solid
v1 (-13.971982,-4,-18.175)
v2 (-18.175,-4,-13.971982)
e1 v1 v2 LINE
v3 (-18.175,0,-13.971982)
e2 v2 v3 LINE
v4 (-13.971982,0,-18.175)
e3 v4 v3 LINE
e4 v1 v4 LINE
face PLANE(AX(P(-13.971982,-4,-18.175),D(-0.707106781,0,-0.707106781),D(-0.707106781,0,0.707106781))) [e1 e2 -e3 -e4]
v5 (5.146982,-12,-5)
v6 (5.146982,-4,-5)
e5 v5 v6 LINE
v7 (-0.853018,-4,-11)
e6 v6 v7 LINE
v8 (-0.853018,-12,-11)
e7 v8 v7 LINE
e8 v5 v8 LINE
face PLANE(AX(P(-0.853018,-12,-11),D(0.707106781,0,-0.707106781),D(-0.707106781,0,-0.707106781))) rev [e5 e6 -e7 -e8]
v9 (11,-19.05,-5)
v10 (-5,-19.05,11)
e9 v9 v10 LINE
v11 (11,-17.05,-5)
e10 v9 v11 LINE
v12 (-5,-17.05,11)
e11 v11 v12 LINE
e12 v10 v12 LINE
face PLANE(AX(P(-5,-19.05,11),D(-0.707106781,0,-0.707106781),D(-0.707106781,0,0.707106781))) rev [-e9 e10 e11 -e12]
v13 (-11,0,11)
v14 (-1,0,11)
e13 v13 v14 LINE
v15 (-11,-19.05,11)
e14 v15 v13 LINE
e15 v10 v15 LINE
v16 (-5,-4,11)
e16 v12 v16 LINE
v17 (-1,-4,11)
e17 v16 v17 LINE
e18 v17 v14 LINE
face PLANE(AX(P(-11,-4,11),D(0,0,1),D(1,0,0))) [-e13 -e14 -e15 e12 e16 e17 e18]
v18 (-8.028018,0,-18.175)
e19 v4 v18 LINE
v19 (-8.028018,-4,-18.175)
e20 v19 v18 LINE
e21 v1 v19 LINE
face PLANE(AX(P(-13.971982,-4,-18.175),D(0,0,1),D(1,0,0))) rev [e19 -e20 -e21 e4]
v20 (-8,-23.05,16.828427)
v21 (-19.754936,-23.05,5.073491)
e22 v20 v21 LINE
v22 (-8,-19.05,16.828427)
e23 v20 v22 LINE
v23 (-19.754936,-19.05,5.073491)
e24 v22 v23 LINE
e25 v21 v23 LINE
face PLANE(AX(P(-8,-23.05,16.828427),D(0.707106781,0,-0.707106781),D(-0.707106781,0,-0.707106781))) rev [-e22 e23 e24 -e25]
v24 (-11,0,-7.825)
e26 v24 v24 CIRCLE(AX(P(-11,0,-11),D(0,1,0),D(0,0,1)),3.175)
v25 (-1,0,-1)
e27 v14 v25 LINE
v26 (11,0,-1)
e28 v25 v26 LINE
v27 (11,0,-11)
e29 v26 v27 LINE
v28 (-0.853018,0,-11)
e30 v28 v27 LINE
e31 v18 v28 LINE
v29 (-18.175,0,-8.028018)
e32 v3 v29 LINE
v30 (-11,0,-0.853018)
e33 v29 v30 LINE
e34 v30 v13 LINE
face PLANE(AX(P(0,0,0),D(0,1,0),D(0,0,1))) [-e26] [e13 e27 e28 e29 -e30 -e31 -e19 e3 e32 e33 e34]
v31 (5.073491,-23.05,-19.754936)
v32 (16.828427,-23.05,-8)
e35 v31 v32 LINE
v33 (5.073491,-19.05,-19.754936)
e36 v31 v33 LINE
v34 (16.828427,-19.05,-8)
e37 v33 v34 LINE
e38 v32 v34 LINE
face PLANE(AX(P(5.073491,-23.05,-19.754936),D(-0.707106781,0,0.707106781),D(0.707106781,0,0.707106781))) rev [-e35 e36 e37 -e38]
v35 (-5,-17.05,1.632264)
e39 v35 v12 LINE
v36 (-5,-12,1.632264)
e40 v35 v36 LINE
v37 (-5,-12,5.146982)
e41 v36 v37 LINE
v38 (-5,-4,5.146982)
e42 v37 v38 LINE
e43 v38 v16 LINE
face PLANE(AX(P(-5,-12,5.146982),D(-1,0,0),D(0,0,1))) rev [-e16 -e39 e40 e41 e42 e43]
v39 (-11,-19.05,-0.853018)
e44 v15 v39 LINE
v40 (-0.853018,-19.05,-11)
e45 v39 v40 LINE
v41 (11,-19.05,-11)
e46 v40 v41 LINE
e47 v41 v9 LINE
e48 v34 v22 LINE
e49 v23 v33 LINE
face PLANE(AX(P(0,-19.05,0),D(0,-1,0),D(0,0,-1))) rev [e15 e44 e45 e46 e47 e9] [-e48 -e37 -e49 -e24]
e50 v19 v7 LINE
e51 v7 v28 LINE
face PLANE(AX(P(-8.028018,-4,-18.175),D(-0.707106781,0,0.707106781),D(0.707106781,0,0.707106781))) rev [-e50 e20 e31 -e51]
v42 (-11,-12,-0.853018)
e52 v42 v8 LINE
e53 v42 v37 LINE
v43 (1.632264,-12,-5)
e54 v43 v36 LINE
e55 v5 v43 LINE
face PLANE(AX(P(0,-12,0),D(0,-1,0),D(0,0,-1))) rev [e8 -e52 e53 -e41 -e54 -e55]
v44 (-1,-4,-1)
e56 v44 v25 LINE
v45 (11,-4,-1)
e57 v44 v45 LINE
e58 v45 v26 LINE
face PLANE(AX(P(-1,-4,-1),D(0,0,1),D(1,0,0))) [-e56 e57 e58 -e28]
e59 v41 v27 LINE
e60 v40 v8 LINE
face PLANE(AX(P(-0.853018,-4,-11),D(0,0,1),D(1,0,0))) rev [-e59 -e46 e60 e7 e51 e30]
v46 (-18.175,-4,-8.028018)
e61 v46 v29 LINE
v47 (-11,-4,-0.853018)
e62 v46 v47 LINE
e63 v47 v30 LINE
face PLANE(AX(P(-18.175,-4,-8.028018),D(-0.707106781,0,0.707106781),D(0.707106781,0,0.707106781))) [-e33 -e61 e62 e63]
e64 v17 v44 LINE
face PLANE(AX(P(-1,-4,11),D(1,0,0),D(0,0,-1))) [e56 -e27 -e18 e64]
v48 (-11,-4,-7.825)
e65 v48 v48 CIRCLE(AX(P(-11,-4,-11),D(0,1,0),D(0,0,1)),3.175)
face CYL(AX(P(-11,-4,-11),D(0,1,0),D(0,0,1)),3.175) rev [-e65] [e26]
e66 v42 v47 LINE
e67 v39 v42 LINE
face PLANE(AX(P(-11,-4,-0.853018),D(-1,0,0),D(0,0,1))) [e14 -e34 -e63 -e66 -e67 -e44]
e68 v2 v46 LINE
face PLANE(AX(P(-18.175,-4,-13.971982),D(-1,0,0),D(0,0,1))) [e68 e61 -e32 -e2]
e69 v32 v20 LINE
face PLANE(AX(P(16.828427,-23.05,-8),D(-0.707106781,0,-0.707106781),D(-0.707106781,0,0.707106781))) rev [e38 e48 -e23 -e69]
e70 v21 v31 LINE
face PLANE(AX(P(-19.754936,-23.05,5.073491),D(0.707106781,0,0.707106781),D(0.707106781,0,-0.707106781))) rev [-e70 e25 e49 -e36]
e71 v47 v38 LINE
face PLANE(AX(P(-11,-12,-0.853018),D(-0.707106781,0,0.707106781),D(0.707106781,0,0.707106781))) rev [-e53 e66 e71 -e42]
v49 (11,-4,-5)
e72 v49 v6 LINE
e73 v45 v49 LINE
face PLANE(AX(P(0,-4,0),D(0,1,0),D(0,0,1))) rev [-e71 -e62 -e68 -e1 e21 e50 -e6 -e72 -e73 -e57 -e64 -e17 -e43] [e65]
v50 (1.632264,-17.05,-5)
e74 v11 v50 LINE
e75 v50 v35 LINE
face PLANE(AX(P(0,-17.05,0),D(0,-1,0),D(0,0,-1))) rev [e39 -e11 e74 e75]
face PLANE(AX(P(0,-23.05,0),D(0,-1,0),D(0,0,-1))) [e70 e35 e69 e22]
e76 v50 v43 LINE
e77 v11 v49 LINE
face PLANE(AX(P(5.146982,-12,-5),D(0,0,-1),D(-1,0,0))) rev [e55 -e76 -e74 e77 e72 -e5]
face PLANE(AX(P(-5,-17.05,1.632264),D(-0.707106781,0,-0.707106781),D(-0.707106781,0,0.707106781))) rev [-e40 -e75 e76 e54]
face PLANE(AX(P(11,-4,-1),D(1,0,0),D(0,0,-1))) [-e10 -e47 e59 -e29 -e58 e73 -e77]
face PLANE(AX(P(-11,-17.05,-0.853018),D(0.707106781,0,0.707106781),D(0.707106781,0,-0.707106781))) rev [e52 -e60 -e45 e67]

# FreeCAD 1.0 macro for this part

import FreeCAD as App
import Part
import Sketcher
from FreeCAD import Vector
Q = App.Units.Quantity

doc = App.newDocument("Part")
body = doc.addObject("PartDesign::Body", "Body")

# Sketch on XZ plane
sketch1 = body.newObject("Sketcher::SketchObject", "Sketch")
sketch1.AttachmentSupport = (doc.getObject("XZ_Plane"), [""])
sketch1.MapMode = "FlatFace"
sketch1.addGeometry([
    Part.LineSegment(Vector(-11, 11, 0), Vector(-1, 11, 0)),  # 0
    Part.LineSegment(Vector(-1, 11, 0), Vector(-1, -1, 0)),  # 1
    Part.LineSegment(Vector(-1, -1, 0), Vector(11, -1, 0)),  # 2
    Part.LineSegment(Vector(11, -1, 0), Vector(11, -11, 0)),  # 3
    Part.LineSegment(Vector(11, -11, 0), Vector(-0.853018, -11, 0)),  # 4
    Part.LineSegment(Vector(-0.853018, -11, 0), Vector(-8.028018, -18.175, 0)),  # 5
    Part.LineSegment(Vector(-8.028018, -18.175, 0), Vector(-13.971982, -18.175, 0)),  # 6
    Part.LineSegment(Vector(-13.971982, -18.175, 0), Vector(-18.175, -13.971982, 0)),  # 7
    Part.LineSegment(Vector(-18.175, -13.971982, 0), Vector(-18.175, -8.028018, 0)),  # 8
    Part.LineSegment(Vector(-18.175, -8.028018, 0), Vector(-11, -0.853018, 0)),  # 9
    Part.LineSegment(Vector(-11, -0.853018, 0), Vector(-11, 11, 0)),  # 10
    Part.Circle(Vector(-11, -11, 0), Vector(0, 0, 1), 3.175),  # 11
], False)
sketch1.addConstraint([
    Sketcher.Constraint("Coincident", 0, 2, 1, 1),
    Sketcher.Constraint("Coincident", 1, 2, 2, 1),
    Sketcher.Constraint("Coincident", 2, 2, 3, 1),
    Sketcher.Constraint("Coincident", 3, 2, 4, 1),
    Sketcher.Constraint("Coincident", 4, 2, 5, 1),
    Sketcher.Constraint("Coincident", 5, 2, 6, 1),
    Sketcher.Constraint("Coincident", 6, 2, 7, 1),
    Sketcher.Constraint("Coincident", 7, 2, 8, 1),
    Sketcher.Constraint("Coincident", 8, 2, 9, 1),
    Sketcher.Constraint("Coincident", 9, 2, 10, 1),
    Sketcher.Constraint("Coincident", 10, 2, 0, 1),
    Sketcher.Constraint("Horizontal", 0),
    Sketcher.Constraint("Vertical", 1),
    Sketcher.Constraint("Horizontal", 2),
    Sketcher.Constraint("Vertical", 3),
    Sketcher.Constraint("Horizontal", 4),
    Sketcher.Constraint("Horizontal", 6),
    Sketcher.Constraint("Vertical", 8),
    Sketcher.Constraint("Vertical", 10),
    Sketcher.Constraint("Symmetric", 3, 2, 10, 2, -1, 1),
    Sketcher.Constraint("Perpendicular", 5, 7),
    Sketcher.Constraint("Perpendicular", 7, 9),
    Sketcher.Constraint("Horizontal", 11, 3, 3, 2),
    Sketcher.Constraint("Vertical", 11, 3, 9, 2),
    Sketcher.Constraint("Equal", 2, 1),
    Sketcher.Constraint("Equal", 0, 3),
    Sketcher.Constraint("Equal", 6, 8),
    Sketcher.Constraint("Equal", 4, 10),
    Sketcher.Constraint("Equal", 5, 9),
    Sketcher.Constraint("Diameter", 11, 6.35),
    Sketcher.Constraint("DistanceX", 0, 1, 0, 2, 10.0),
    Sketcher.Constraint("DistanceX", 2, 1, 2, 2, 12.0),
    Sketcher.Constraint("DistanceY", 5, 2, -1, 1, 18.175),
    Sketcher.Constraint("DistanceX", 4, 2, 4, 1, 11.853018),
    Sketcher.Constraint("DistanceX", 6, 2, 6, 1, 5.943965),
])
pad1 = body.newObject("PartDesign::Pad", "Pad")
pad1.Profile = sketch1
pad1.Length = 4

# Sketch on XZ plane
sketch2 = body.newObject("Sketcher::SketchObject", "Sketch001")
sketch2.AttachmentSupport = (doc.getObject("XZ_Plane"), [""])
sketch2.MapMode = "FlatFace"
sketch2.AttachmentOffset = App.Placement(Vector(0, 0, 4), App.Rotation())
sketch2.addGeometry([
    Part.LineSegment(Vector(-0.853018, -11, 0), Vector(11, -11, 0)),  # 0
    Part.LineSegment(Vector(11, -11, 0), Vector(11, -5, 0)),  # 1
    Part.LineSegment(Vector(11, -5, 0), Vector(5.146982, -5, 0)),  # 2
    Part.LineSegment(Vector(5.146982, -5, 0), Vector(-0.853018, -11, 0)),  # 3
    Part.LineSegment(Vector(-11, 11, 0), Vector(-11, -0.853018, 0)),  # 4
    Part.LineSegment(Vector(-11, -0.853018, 0), Vector(-5, 5.146982, 0)),  # 5
    Part.LineSegment(Vector(-5, 5.146982, 0), Vector(-5, 11, 0)),  # 6
    Part.LineSegment(Vector(-5, 11, 0), Vector(-11, 11, 0)),  # 7
], False)
sketch2.addConstraint([
    Sketcher.Constraint("Coincident", 0, 2, 1, 1),
    Sketcher.Constraint("Coincident", 1, 2, 2, 1),
    Sketcher.Constraint("Coincident", 2, 2, 3, 1),
    Sketcher.Constraint("Coincident", 3, 2, 0, 1),
    Sketcher.Constraint("Coincident", 4, 2, 5, 1),
    Sketcher.Constraint("Coincident", 5, 2, 6, 1),
    Sketcher.Constraint("Coincident", 6, 2, 7, 1),
    Sketcher.Constraint("Coincident", 7, 2, 4, 1),
    Sketcher.Constraint("Horizontal", 0),
    Sketcher.Constraint("Vertical", 1),
    Sketcher.Constraint("Horizontal", 2),
    Sketcher.Constraint("Vertical", 4),
    Sketcher.Constraint("Vertical", 6),
    Sketcher.Constraint("Horizontal", 7),
    Sketcher.Constraint("Symmetric", 0, 2, 7, 2, -1, 1),
    Sketcher.Constraint("Parallel", 3, 5),
    Sketcher.Constraint("Equal", 7, 1),
    Sketcher.Constraint("Equal", 0, 4),
    Sketcher.Constraint("Equal", 2, 6),
    Sketcher.Constraint("DistanceX", 7, 2, 7, 1, 6.0),
    Sketcher.Constraint("DistanceX", -1, 1, 0, 2, 11.0),
    Sketcher.Constraint("DistanceY", 0, 2, -1, 1, 11.0),
    Sketcher.Constraint("DistanceX", 0, 1, 0, 2, 11.853018),
])
pad2 = body.newObject("PartDesign::Pad", "Pad001")
pad2.Profile = sketch2
pad2.Length = 8

# Sketch on XZ plane
sketch3 = body.newObject("Sketcher::SketchObject", "Sketch002")
sketch3.AttachmentSupport = (doc.getObject("XZ_Plane"), [""])
sketch3.MapMode = "FlatFace"
sketch3.AttachmentOffset = App.Placement(Vector(0, 0, 12), App.Rotation())
sketch3.addGeometry([
    Part.LineSegment(Vector(-0.853018, -11, 0), Vector(11, -11, 0)),  # 0
    Part.LineSegment(Vector(11, -11, 0), Vector(11, -5, 0)),  # 1
    Part.LineSegment(Vector(11, -5, 0), Vector(1.632264, -5, 0)),  # 2
    Part.LineSegment(Vector(1.632264, -5, 0), Vector(-5, 1.632264, 0)),  # 3
    Part.LineSegment(Vector(-5, 1.632264, 0), Vector(-5, 11, 0)),  # 4
    Part.LineSegment(Vector(-5, 11, 0), Vector(-11, 11, 0)),  # 5
    Part.LineSegment(Vector(-11, 11, 0), Vector(-11, -0.853018, 0)),  # 6
    Part.LineSegment(Vector(-11, -0.853018, 0), Vector(-0.853018, -11, 0)),  # 7
], False)
sketch3.addConstraint([
    Sketcher.Constraint("Coincident", 0, 2, 1, 1),
    Sketcher.Constraint("Coincident", 1, 2, 2, 1),
    Sketcher.Constraint("Coincident", 2, 2, 3, 1),
    Sketcher.Constraint("Coincident", 3, 2, 4, 1),
    Sketcher.Constraint("Coincident", 4, 2, 5, 1),
    Sketcher.Constraint("Coincident", 5, 2, 6, 1),
    Sketcher.Constraint("Coincident", 6, 2, 7, 1),
    Sketcher.Constraint("Coincident", 7, 2, 0, 1),
    Sketcher.Constraint("Horizontal", 0),
    Sketcher.Constraint("Vertical", 1),
    Sketcher.Constraint("Horizontal", 2),
    Sketcher.Constraint("Vertical", 4),
    Sketcher.Constraint("Horizontal", 5),
    Sketcher.Constraint("Vertical", 6),
    Sketcher.Constraint("Symmetric", 0, 2, 5, 2, -1, 1),
    Sketcher.Constraint("Parallel", 3, 7),
    Sketcher.Constraint("Equal", 5, 1),
    Sketcher.Constraint("Equal", 2, 4),
    Sketcher.Constraint("Equal", 0, 6),
    Sketcher.Constraint("DistanceX", 5, 2, 5, 1, 6.0),
    Sketcher.Constraint("DistanceX", -1, 1, 0, 2, 11.0),
    Sketcher.Constraint("Distance", 7, 14.35),
    Sketcher.Constraint("DistanceX", 2, 2, 2, 1, 9.367736),
])
pad3 = body.newObject("PartDesign::Pad", "Pad002")
pad3.Profile = sketch3
pad3.Length = 5.05

# Sketch on XZ plane
sketch4 = body.newObject("Sketcher::SketchObject", "Sketch003")
sketch4.AttachmentSupport = (doc.getObject("XZ_Plane"), [""])
sketch4.MapMode = "FlatFace"
sketch4.AttachmentOffset = App.Placement(Vector(0, 0, 17.05), App.Rotation())
sketch4.addGeometry([
    Part.LineSegment(Vector(-5, 11, 0), Vector(-11, 11, 0)),  # 0
    Part.LineSegment(Vector(-11, 11, 0), Vector(-11, -0.853018, 0)),  # 1
    Part.LineSegment(Vector(-11, -0.853018, 0), Vector(-0.853018, -11, 0)),  # 2
    Part.LineSegment(Vector(-0.853018, -11, 0), Vector(11, -11, 0)),  # 3
    Part.LineSegment(Vector(11, -11, 0), Vector(11, -5, 0)),  # 4
    Part.LineSegment(Vector(11, -5, 0), Vector(-5, 11, 0)),  # 5
], False)
sketch4.addConstraint([
    Sketcher.Constraint("Coincident", 0, 2, 1, 1),
    Sketcher.Constraint("Coincident", 1, 2, 2, 1),
    Sketcher.Constraint("Coincident", 2, 2, 3, 1),
    Sketcher.Constraint("Coincident", 3, 2, 4, 1),
    Sketcher.Constraint("Coincident", 4, 2, 5, 1),
    Sketcher.Constraint("Coincident", 5, 2, 0, 1),
    Sketcher.Constraint("Horizontal", 0),
    Sketcher.Constraint("Vertical", 1),
    Sketcher.Constraint("Horizontal", 3),
    Sketcher.Constraint("Vertical", 4),
    Sketcher.Constraint("Symmetric", 0, 2, 3, 2, -1, 1),
    Sketcher.Constraint("Parallel", 2, 5),
    Sketcher.Constraint("Equal", 3, 1),
    Sketcher.Constraint("Equal", 0, 4),
    Sketcher.Constraint("DistanceX", 0, 2, 0, 1, 6.0),
    Sketcher.Constraint("DistanceX", 0, 2, -1, 1, 11.0),
    Sketcher.Constraint("Distance", 2, 14.35),
])
pad4 = body.newObject("PartDesign::Pad", "Pad003")
pad4.Profile = sketch4
pad4.Length = 2

# Sketch on XZ plane
sketch5 = body.newObject("Sketcher::SketchObject", "Sketch004")
sketch5.AttachmentSupport = (doc.getObject("XZ_Plane"), [""])
sketch5.MapMode = "FlatFace"
sketch5.AttachmentOffset = App.Placement(Vector(0, 0, 19.05), App.Rotation())
sketch5.addGeometry([
    Part.LineSegment(Vector(-19.754936, 5.073491, 0), Vector(5.073491, -19.754936, 0)),
    Part.LineSegment(Vector(5.073491, -19.754936, 0), Vector(16.828427, -8, 0)),
    Part.LineSegment(Vector(16.828427, -8, 0), Vector(-8, 16.828427, 0)),
    Part.LineSegment(Vector(-8, 16.828427, 0), Vector(-19.754936, 5.073491, 0)),
], False)
sketch5.addConstraint([
    Sketcher.Constraint("Coincident", 0, 2, 1, 1),
    Sketcher.Constraint("Coincident", 1, 2, 2, 1),
    Sketcher.Constraint("Coincident", 2, 2, 3, 1),
    Sketcher.Constraint("Coincident", 3, 2, 0, 1),
    Sketcher.Constraint("Perpendicular", 0, 1),
    Sketcher.Constraint("Perpendicular", 1, 2),
    Sketcher.Constraint("Perpendicular", 2, 3),
    Sketcher.Constraint("Angle", 0, Q("-45 deg")),
    Sketcher.Constraint("DistanceY", 1, 2, -1, 1, 8.0),
    Sketcher.Constraint("DistanceX", 2, 2, -1, 1, 8.0),
    Sketcher.Constraint("Distance", 0, 35.112698),
    Sketcher.Constraint("Distance", 1, 16.62399),
])
pad5 = body.newObject("PartDesign::Pad", "Pad004")
pad5.Profile = sketch5
pad5.Length = 4

doc.recompute()
